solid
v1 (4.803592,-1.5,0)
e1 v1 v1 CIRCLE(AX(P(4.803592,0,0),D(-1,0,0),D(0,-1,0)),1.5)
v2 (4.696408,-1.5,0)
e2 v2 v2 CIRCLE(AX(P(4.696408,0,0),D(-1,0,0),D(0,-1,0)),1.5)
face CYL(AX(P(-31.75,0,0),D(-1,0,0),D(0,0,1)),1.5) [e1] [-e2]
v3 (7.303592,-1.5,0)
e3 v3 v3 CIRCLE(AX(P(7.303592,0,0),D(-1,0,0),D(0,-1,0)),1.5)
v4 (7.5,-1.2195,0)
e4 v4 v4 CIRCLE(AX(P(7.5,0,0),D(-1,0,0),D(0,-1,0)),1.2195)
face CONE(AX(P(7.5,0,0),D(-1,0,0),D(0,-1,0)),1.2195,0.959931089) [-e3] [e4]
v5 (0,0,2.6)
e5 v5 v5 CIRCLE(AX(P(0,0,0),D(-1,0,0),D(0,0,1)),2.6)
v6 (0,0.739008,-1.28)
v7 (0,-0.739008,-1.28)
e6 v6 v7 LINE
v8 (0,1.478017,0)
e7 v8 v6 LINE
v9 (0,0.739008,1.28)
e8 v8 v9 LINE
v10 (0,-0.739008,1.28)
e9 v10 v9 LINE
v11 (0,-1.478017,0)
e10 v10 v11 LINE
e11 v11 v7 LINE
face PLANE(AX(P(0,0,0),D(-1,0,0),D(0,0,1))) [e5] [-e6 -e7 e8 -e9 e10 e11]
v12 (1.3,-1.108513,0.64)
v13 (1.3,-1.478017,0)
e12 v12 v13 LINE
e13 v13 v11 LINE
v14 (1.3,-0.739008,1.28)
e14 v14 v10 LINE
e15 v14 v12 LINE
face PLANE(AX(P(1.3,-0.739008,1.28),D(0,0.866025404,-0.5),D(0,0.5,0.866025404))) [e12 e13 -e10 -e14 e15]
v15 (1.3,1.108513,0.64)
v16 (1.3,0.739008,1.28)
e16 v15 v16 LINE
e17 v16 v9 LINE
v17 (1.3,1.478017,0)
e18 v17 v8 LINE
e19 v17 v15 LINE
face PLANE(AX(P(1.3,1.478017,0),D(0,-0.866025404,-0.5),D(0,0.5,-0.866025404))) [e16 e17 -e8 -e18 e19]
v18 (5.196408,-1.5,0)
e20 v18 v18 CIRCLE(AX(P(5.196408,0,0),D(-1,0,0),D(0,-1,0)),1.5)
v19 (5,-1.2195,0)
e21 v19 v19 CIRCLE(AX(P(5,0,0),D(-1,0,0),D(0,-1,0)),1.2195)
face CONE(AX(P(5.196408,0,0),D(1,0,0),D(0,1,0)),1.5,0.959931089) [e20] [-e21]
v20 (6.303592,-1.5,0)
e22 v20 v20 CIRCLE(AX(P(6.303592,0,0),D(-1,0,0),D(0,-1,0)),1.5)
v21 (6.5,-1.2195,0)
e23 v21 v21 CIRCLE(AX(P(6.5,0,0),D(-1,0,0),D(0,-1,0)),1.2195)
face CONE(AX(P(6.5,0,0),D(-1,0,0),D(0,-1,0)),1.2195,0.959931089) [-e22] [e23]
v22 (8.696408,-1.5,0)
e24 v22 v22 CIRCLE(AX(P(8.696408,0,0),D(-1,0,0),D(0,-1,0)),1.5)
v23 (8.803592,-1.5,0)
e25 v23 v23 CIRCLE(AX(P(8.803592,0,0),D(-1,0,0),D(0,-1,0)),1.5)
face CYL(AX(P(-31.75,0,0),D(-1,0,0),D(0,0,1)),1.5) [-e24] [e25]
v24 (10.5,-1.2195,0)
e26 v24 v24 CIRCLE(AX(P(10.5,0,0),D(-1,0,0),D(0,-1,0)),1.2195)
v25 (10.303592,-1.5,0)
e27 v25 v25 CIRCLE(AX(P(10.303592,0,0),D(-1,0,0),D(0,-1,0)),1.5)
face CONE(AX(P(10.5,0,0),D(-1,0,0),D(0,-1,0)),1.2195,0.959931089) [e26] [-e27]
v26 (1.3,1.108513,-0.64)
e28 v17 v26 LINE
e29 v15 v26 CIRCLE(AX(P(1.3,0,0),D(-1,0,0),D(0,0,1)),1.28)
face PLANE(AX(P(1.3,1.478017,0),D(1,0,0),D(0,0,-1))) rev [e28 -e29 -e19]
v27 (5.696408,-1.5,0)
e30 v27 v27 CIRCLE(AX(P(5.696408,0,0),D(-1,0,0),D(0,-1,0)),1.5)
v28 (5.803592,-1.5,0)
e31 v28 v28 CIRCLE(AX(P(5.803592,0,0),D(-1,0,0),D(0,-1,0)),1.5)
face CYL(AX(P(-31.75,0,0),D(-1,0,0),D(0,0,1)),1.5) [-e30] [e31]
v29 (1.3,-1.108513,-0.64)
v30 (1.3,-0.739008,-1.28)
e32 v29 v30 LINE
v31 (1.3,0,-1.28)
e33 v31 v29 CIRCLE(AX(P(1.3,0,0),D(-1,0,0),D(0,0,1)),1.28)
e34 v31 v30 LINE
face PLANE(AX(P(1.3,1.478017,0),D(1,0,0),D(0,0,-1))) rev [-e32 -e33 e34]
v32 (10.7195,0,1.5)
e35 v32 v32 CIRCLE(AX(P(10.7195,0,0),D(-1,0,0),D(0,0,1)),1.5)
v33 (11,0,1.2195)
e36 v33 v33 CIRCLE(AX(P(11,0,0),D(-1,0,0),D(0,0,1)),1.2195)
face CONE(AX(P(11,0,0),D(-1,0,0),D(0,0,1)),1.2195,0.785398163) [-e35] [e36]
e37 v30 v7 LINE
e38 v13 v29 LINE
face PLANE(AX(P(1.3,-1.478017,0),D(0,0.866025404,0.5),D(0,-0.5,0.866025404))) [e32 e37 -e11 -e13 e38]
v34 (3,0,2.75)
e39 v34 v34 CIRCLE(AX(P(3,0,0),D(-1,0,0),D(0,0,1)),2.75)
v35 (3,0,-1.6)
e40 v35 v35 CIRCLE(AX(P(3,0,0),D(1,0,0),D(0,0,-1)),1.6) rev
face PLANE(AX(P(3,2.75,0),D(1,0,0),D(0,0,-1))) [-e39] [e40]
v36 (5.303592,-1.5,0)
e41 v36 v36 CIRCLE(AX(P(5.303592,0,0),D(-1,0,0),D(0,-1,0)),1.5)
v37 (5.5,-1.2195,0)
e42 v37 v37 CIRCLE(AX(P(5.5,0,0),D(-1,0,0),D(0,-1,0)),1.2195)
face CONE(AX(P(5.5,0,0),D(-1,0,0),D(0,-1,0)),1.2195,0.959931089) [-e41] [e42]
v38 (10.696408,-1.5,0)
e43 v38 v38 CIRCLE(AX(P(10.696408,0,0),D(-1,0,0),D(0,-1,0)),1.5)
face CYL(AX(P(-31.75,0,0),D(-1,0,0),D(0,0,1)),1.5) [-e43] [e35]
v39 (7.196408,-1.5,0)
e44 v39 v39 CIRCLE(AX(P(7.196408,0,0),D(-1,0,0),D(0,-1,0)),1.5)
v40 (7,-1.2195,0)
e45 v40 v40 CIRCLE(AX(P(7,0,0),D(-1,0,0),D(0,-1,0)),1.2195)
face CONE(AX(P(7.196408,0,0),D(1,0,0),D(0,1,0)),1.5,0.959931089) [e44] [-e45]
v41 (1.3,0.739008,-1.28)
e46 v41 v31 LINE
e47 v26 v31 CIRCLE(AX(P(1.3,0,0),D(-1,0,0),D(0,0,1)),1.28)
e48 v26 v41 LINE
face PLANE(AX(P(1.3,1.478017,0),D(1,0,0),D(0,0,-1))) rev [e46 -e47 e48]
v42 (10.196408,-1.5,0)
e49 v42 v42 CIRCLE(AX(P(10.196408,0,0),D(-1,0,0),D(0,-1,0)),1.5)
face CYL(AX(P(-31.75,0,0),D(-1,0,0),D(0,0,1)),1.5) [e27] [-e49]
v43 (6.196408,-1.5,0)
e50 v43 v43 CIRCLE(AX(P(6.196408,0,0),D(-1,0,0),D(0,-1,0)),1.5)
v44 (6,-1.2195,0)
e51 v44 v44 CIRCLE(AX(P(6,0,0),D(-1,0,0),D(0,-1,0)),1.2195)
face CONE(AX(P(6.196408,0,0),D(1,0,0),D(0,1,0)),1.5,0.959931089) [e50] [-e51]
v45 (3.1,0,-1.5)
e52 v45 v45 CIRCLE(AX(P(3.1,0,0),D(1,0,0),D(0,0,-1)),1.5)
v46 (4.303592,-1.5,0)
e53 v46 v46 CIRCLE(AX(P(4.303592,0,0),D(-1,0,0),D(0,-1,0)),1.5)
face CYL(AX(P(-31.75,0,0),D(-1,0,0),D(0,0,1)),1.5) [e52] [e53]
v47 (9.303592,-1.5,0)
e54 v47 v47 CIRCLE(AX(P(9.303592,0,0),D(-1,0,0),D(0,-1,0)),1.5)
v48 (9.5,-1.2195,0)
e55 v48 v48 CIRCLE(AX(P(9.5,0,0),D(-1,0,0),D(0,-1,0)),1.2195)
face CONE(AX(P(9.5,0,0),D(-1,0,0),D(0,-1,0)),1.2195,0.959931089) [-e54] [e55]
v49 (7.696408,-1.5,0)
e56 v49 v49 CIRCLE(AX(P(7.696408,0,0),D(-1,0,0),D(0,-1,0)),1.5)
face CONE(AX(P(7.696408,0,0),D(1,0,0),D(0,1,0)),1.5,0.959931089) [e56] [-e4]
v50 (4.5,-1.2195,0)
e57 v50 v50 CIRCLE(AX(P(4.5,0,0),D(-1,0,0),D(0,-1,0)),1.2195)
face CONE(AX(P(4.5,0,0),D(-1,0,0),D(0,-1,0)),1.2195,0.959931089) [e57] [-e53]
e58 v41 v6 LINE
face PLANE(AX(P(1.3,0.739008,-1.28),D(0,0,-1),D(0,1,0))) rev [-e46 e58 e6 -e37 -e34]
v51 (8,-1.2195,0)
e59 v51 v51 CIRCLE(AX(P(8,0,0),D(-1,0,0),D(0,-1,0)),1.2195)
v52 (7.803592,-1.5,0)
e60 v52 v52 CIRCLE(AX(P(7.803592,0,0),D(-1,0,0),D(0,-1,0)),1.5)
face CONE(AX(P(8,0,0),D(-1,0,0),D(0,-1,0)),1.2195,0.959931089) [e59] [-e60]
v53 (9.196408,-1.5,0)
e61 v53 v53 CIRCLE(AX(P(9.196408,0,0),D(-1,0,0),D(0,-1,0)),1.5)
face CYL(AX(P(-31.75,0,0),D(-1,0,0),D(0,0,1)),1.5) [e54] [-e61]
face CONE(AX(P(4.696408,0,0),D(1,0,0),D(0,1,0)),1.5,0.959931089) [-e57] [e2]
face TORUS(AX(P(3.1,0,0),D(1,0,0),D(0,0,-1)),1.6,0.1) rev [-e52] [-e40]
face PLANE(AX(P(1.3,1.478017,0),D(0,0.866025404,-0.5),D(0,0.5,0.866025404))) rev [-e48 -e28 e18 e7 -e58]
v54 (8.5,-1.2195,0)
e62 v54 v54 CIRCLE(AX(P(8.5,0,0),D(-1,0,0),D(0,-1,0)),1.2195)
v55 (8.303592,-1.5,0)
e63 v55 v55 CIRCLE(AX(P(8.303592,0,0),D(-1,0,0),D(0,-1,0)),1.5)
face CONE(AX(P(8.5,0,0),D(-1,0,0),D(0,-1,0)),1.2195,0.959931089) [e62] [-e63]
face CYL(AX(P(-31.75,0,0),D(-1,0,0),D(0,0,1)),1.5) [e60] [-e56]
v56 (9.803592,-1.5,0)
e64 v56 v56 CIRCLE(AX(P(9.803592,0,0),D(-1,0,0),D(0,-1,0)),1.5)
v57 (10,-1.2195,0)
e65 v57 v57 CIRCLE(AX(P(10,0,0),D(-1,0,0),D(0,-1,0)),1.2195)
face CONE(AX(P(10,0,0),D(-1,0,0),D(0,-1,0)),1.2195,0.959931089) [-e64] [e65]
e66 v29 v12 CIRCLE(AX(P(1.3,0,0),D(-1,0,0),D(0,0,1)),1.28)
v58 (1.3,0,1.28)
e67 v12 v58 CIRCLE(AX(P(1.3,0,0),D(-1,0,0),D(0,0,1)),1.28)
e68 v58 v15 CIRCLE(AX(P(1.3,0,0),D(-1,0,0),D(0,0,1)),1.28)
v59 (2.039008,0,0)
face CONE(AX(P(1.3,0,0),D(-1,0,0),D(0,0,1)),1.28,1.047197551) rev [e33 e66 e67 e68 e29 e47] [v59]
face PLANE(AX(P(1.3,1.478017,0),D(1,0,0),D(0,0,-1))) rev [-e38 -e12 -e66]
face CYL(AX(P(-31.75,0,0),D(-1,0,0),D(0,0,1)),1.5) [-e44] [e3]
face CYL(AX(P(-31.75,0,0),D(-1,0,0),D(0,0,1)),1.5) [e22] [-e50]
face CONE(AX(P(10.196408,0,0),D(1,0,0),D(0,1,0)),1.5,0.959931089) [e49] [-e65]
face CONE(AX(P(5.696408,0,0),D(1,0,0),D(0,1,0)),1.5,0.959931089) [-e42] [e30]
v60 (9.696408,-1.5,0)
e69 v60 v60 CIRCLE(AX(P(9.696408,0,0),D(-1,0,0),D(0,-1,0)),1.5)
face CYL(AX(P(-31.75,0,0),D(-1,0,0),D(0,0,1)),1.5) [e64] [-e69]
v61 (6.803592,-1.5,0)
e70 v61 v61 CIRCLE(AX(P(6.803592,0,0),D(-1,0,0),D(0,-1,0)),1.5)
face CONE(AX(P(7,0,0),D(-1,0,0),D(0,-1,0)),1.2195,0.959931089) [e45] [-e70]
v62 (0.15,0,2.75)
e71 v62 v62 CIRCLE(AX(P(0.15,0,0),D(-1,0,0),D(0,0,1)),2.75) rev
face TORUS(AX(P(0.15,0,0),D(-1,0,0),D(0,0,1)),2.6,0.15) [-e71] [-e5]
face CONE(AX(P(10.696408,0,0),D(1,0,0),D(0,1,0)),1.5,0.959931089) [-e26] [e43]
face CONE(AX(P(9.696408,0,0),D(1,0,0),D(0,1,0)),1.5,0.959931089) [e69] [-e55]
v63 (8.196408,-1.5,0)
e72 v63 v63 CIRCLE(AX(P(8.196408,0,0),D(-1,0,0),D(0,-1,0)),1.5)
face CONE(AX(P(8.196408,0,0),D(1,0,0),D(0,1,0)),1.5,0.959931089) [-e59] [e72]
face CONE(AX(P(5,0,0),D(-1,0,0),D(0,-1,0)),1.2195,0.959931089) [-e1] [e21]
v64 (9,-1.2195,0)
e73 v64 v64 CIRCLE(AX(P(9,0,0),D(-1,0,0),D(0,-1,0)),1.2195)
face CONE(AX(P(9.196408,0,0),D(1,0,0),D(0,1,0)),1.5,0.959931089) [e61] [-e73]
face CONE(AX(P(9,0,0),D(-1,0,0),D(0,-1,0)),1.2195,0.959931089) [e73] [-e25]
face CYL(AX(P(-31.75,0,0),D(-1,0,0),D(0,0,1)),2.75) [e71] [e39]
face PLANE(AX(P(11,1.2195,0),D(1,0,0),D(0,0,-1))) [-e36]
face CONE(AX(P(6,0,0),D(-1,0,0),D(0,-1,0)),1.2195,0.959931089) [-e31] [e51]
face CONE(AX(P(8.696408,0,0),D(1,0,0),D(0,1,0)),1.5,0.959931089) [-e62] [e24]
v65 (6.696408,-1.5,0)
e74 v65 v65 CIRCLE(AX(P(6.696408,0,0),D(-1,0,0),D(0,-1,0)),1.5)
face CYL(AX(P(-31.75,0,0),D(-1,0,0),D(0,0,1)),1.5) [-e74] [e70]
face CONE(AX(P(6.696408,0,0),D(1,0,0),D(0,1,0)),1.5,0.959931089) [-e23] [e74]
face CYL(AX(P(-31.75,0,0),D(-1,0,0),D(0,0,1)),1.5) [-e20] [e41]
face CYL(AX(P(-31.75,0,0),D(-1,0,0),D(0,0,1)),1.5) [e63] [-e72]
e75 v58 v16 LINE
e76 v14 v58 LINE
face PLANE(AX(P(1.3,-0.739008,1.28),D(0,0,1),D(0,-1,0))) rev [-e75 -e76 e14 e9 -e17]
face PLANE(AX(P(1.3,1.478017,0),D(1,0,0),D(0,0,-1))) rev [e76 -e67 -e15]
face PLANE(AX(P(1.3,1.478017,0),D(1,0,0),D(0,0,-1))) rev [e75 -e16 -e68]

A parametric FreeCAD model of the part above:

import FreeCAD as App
import Part
import Sketcher

V = App.Vector
Q = App.Units.Quantity


def edges_at(feature, points):
    """Names of the edges that pass closest to the given points."""
    edges = feature.Shape.Edges
    near = lambda p: min(range(len(edges)), key=lambda i: edges[i].distToShape(Part.Vertex(*p))[0])
    return sorted({f"Edge{near(p) + 1}" for p in points})

doc = App.newDocument("Part")
body = doc.addObject("PartDesign::Body", "Body")

sketch1 = body.newObject("Sketcher::SketchObject", "Sketch")
sketch1.AttachmentSupport = (doc.getObject("XY_Plane"), [""])
sketch1.MapMode = "FlatFace"
sketch1.addGeometry([
    Part.LineSegment(V(0, 2.75, 0), V(0, 0, 0)),
    Part.LineSegment(V(0, 0, 0), V(11, 0, 0)),
    Part.LineSegment(V(11, 0, 0), V(11, 1.2195, 0)),
    Part.LineSegment(V(11, 1.2195, 0), V(10.7195, 1.5, 0)),
    Part.LineSegment(V(10.7195, 1.5, 0), V(3, 1.5, 0)),
    Part.LineSegment(V(3, 1.5, 0), V(3, 2.75, 0)),
    Part.LineSegment(V(3, 2.75, 0), V(0, 2.75, 0)),
], False)
sketch1.addConstraint([
    Sketcher.Constraint("Coincident", 0, 2, 1, 1),
    Sketcher.Constraint("Coincident", 1, 2, 2, 1),
    Sketcher.Constraint("Coincident", 2, 2, 3, 1),
    Sketcher.Constraint("Coincident", 3, 2, 4, 1),
    Sketcher.Constraint("Coincident", 4, 2, 5, 1),
    Sketcher.Constraint("Coincident", 5, 2, 6, 1),
    Sketcher.Constraint("Coincident", 6, 2, 0, 1),
    Sketcher.Constraint("Vertical", 0),
    Sketcher.Constraint("Horizontal", 1),
    Sketcher.Constraint("Vertical", 2),
    Sketcher.Constraint("Horizontal", 4),
    Sketcher.Constraint("Vertical", 5),
    Sketcher.Constraint("Horizontal", 6),
    Sketcher.Constraint("Coincident", 0, 2, -1, 1),
    Sketcher.Constraint("DistanceX", 1, 1, 1, 2, Q("11 mm")),
    Sketcher.Constraint("DistanceX", 6, 2, 6, 1, Q("3 mm")),
    Sketcher.Constraint("Angle", 3, Q("135 deg")),
    Sketcher.Constraint("DistanceY", 0, 2, 0, 1, Q("2.75 mm")),
    Sketcher.Constraint("DistanceY", 5, 1, 5, 2, Q("1.25 mm")),
    Sketcher.Constraint("DistanceX", 4, 2, 4, 1, Q("7.7195 mm")),
])
revolution = body.newObject("PartDesign::Revolution", "Revolution")
revolution.Profile = sketch1
revolution.ReferenceAxis = (sketch1, ["H_Axis"])
revolution.Angle = 360
doc.recompute()

fillet = body.newObject("PartDesign::Fillet", "Fillet")
fillet.Base = (revolution, edges_at(revolution, [(3, -1.5, 0)]))
fillet.Radius = 0.1
doc.recompute()

fillet2 = body.newObject("PartDesign::Fillet", "Fillet001")
fillet2.Base = (fillet, edges_at(fillet, [(0, -2.75, 0)]))
fillet2.Radius = 0.15

sketch2 = body.newObject("Sketcher::SketchObject", "Sketch001")
sketch2.AttachmentSupport = (doc.getObject("XY_Plane"), [""])
sketch2.MapMode = "FlatFace"
sketch2.addGeometry([
    Part.LineSegment(V(1.3, 1.28, 0), V(0, 1.28, 0)),
    Part.LineSegment(V(0, 1.28, 0), V(0, 0, 0)),
    Part.LineSegment(V(0, 0, 0), V(2.039008, 0, 0)),
    Part.LineSegment(V(2.039008, 0, 0), V(1.3, 1.28, 0)),
], False)
sketch2.addConstraint([
    Sketcher.Constraint("Coincident", 0, 2, 1, 1),
    Sketcher.Constraint("Coincident", 1, 2, 2, 1),
    Sketcher.Constraint("Coincident", 2, 2, 3, 1),
    Sketcher.Constraint("Coincident", 3, 2, 0, 1),
    Sketcher.Constraint("Horizontal", 0),
    Sketcher.Constraint("Vertical", 1),
    Sketcher.Constraint("Horizontal", 2),
    Sketcher.Constraint("Coincident", 1, 2, -1, 1),
    Sketcher.Constraint("Angle", 3, Q("120 deg")),
    Sketcher.Constraint("DistanceX", 0, 2, 0, 1, Q("1.3 mm")),
    Sketcher.Constraint("DistanceY", 1, 2, 1, 1, Q("1.28 mm")),
])
groove = body.newObject("PartDesign::Groove", "Groove")
groove.Profile = sketch2
groove.ReferenceAxis = (sketch2, ["H_Axis"])
groove.Angle = 360

sketch3 = body.newObject("Sketcher::SketchObject", "Sketch002")
sketch3.AttachmentSupport = (doc.getObject("YZ_Plane"), [""])
sketch3.MapMode = "FlatFace"
sketch3.addGeometry([
    Part.LineSegment(V(1.478017, 0, 0), V(0.739008, -1.28, 0)),
    Part.LineSegment(V(0.739008, -1.28, 0), V(-0.739008, -1.28, 0)),
    Part.LineSegment(V(-0.739008, -1.28, 0), V(-1.478017, 0, 0)),
    Part.LineSegment(V(-1.478017, 0, 0), V(-0.739008, 1.28, 0)),
    Part.LineSegment(V(-0.739008, 1.28, 0), V(0.739008, 1.28, 0)),
    Part.LineSegment(V(0.739008, 1.28, 0), V(1.478017, 0, 0)),
], False)
sketch3.addConstraint([
    Sketcher.Constraint("Coincident", 0, 2, 1, 1),
    Sketcher.Constraint("Coincident", 1, 2, 2, 1),
    Sketcher.Constraint("Coincident", 2, 2, 3, 1),
    Sketcher.Constraint("Coincident", 3, 2, 4, 1),
    Sketcher.Constraint("Coincident", 4, 2, 5, 1),
    Sketcher.Constraint("Coincident", 5, 2, 0, 1),
    Sketcher.Constraint("Horizontal", 1),
    Sketcher.Constraint("Horizontal", 4),
    Sketcher.Constraint("Symmetric", 0, 2, 3, 2, -1, 1),
    Sketcher.Constraint("Symmetric", 2, 2, 5, 2, -1, 1),
    Sketcher.Constraint("PointOnObject", 2, 2, -1),
    Sketcher.Constraint("Parallel", 2, 5),
    Sketcher.Constraint("Vertical", 1, 2, 3, 2),
    Sketcher.Constraint("Angle", 0, Q("-120 deg")),
    Sketcher.Constraint("DistanceY", 0, 2, -1, 1, Q("1.28 mm")),
    Sketcher.Constraint("DistanceX", 1, 2, 1, 1, Q("1.478017 mm")),
])
pocket1 = body.newObject("PartDesign::Pocket", "Pocket")
pocket1.Profile = sketch3
pocket1.Length = 1.3
pocket1.Reversed = True

sketch4 = body.newObject("Sketcher::SketchObject", "Sketch003")
sketch4.AttachmentSupport = (doc.getObject("XY_Plane"), [""])
sketch4.MapMode = "FlatFace"
sketch4.addGeometry([
    Part.LineSegment(V(4.5, -1.2195, 0), V(4.303592, -1.5, 0)),
    Part.LineSegment(V(4.303592, -1.5, 0), V(4.303592, -1.875, 0)),
    Part.LineSegment(V(4.303592, -1.875, 0), V(4.696408, -1.875, 0)),
    Part.LineSegment(V(4.696408, -1.875, 0), V(4.696408, -1.5, 0)),
    Part.LineSegment(V(4.696408, -1.5, 0), V(4.5, -1.2195, 0)),
], False)
sketch4.addConstraint([
    Sketcher.Constraint("Coincident", 0, 2, 1, 1),
    Sketcher.Constraint("Coincident", 1, 2, 2, 1),
    Sketcher.Constraint("Coincident", 2, 2, 3, 1),
    Sketcher.Constraint("Coincident", 3, 2, 4, 1),
    Sketcher.Constraint("Coincident", 4, 2, 0, 1),
    Sketcher.Constraint("Vertical", 1),
    Sketcher.Constraint("Horizontal", 2),
    Sketcher.Constraint("Vertical", 3),
    Sketcher.Constraint("Horizontal", 0, 2, 3, 2),
    Sketcher.Constraint("Equal", 0, 4),
    Sketcher.Constraint("Angle", 0, Q("-125 deg")),
    Sketcher.Constraint("DistanceY", 0, 2, -1, 1, Q("1.5 mm")),
    Sketcher.Constraint("DistanceX", -1, 1, 4, 2, Q("4.5 mm")),
    Sketcher.Constraint("DistanceY", 1, 2, 1, 1, Q("0.375 mm")),
    Sketcher.Constraint("DistanceY", 4, 2, -1, 1, Q("1.2195 mm")),
])
groove2 = body.newObject("PartDesign::Groove", "Groove001")
groove2.Profile = sketch4
groove2.ReferenceAxis = (sketch4, ["H_Axis"])
groove2.Angle = 360
doc.recompute()

linearpattern = body.newObject("PartDesign::LinearPattern", "LinearPattern")
linearpattern.Originals = [groove2]
linearpattern.Direction = (doc.getObject("X_Axis"), [""])
linearpattern.Mode = "offset"
linearpattern.Offset = 0.5
linearpattern.Occurrences = 13
body.Tip = linearpattern

doc.recompute()
